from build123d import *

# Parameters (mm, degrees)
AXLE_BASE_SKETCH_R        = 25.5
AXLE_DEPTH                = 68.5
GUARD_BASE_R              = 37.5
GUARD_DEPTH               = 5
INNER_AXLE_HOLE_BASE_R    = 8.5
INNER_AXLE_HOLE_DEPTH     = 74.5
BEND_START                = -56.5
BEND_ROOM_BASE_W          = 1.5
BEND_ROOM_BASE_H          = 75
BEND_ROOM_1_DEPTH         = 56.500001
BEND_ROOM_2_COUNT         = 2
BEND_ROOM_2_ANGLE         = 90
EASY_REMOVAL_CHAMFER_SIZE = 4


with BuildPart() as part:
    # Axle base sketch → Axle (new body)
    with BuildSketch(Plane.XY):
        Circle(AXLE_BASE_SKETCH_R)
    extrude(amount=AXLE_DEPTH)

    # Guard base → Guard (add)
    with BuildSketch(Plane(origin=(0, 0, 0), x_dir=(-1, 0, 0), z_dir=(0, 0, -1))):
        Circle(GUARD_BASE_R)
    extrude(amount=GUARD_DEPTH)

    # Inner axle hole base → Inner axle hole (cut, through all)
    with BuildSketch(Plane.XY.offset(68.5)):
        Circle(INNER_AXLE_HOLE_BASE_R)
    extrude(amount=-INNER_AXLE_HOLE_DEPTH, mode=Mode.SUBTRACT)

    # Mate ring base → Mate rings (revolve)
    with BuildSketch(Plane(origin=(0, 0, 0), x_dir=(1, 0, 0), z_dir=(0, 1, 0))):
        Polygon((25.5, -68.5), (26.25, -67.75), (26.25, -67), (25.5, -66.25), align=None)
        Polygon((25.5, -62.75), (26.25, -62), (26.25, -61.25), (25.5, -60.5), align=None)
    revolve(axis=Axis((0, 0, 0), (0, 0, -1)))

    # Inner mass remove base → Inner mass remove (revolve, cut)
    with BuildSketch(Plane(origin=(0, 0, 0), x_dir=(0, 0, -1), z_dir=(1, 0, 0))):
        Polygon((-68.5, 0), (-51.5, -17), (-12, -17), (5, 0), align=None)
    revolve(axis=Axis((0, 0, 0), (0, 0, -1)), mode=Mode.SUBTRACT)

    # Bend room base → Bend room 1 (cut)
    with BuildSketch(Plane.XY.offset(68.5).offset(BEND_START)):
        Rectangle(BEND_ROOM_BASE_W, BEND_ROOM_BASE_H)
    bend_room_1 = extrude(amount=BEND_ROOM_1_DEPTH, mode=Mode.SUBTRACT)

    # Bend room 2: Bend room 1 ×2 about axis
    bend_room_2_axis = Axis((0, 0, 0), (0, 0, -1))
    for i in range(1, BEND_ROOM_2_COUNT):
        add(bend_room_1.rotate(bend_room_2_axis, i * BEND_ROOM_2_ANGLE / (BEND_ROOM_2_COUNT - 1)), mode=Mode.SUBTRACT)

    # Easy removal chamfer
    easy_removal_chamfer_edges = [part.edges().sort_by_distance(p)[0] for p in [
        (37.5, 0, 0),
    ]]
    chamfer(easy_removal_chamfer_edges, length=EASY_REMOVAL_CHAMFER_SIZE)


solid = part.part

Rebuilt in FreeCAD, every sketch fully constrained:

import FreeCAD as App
import Part
import Sketcher
Q = App.Units.Quantity


def edges_at(feature, points):
    """Names of the edges that pass closest to the given points."""
    edges = feature.Shape.Edges
    near = lambda p: min(range(len(edges)), key=lambda i: edges[i].distToShape(Part.Vertex(*p))[0])
    return sorted({f"Edge{near(p) + 1}" for p in points})

doc = App.newDocument("Part")
params = doc.addObject("Spreadsheet::Sheet", "Params")
for row, (alias, value) in enumerate([
    ("sketch1_diameter", "51 mm"),
    ("pad1_length", "68.5 mm"),
    ("sketch2_diameter", "75 mm"),
    ("pad2_length", "5 mm"),
    ("sketch3_diameter", "17 mm"),
    ("sketch4_height", "0.75 mm"),
    ("revolution_angle", "360 deg"),
    ("sketch5_height", "39.5 mm"),
    ("sketch5_height2", "73.5 mm"),
    ("groove_angle", "360 deg"),
    ("sketch6_height", "75 mm"),
    ("sketch6_width", "1.5 mm"),
    ("pocket2_length", "56.500001 mm"),
    ("chamfer_size", "4 mm"),
], start=1):
    params.set(f"A{row}", alias)
    params.set(f"B{row}", "=" + value)
    params.setAlias(f"B{row}", alias)

body = doc.addObject("PartDesign::Body", "Body")

# Sketch on XY plane
sketch1 = doc.addObject("Sketcher::SketchObject", "Sketch")
body.addObject(sketch1)
sketch1.AttachmentSupport = (doc.XY_Plane, [""])
sketch1.MapMode = "FlatFace"
sketch1.addGeometry(Part.Circle(App.Vector(0, 0, 0), App.Vector(0, 0, 1), 26), False)
sketch1.addConstraint([
    Sketcher.Constraint("Coincident", 0, 3, -1, 1),
    Sketcher.Constraint("Diameter", 0, Q("51 mm")),
])
sketch1.setExpression("Constraints[1]", "Params.sketch1_diameter")
pad1 = doc.addObject("PartDesign::Pad", "Pad")
body.addObject(pad1)
pad1.Profile = sketch1
pad1.setExpression("Length", "Params.pad1_length")

# Sketch on XY plane
sketch2 = doc.addObject("Sketcher::SketchObject", "Sketch001")
body.addObject(sketch2)
sketch2.AttachmentSupport = (doc.XY_Plane, [""])
sketch2.MapMode = "FlatFace"
sketch2.addGeometry(Part.Circle(App.Vector(0, 0, 0), App.Vector(0, 0, 1), 38), False)
sketch2.addConstraint([
    Sketcher.Constraint("Coincident", 0, 3, -1, 1),
    Sketcher.Constraint("Diameter", 0, Q("75 mm")),
])
sketch2.setExpression("Constraints[1]", "Params.sketch2_diameter")
pad2 = doc.addObject("PartDesign::Pad", "Pad001")
body.addObject(pad2)
pad2.Profile = sketch2
pad2.setExpression("Length", "Params.pad2_length")
pad2.Reversed = True

# Sketch on XY plane
sketch3 = doc.addObject("Sketcher::SketchObject", "Sketch002")
body.addObject(sketch3)
sketch3.AttachmentSupport = (doc.XY_Plane, [""])
sketch3.MapMode = "FlatFace"
sketch3.AttachmentOffset = App.Placement(App.Vector(0, 0, 68.5), App.Rotation())
sketch3.addGeometry(Part.Circle(App.Vector(0, 0, 0), App.Vector(0, 0, 1), 8), False)
sketch3.addConstraint([
    Sketcher.Constraint("Coincident", 0, 3, -1, 1),
    Sketcher.Constraint("Diameter", 0, Q("17 mm")),
])
sketch3.setExpression("Constraints[1]", "Params.sketch3_diameter")
pocket1 = doc.addObject("PartDesign::Pocket", "Pocket")
body.addObject(pocket1)
pocket1.Profile = sketch3
pocket1.Type = "ThroughAll"

# Sketch on XZ plane
sketch4 = doc.addObject("Sketcher::SketchObject", "Sketch003")
body.addObject(sketch4)
sketch4.AttachmentSupport = (doc.XZ_Plane, [""])
sketch4.MapMode = "FlatFace"
sketch4.addGeometry([
    Part.LineSegment(App.Vector(25.5, 68.5, 0), App.Vector(26.2, 67.8, 0)),  # 0
    Part.LineSegment(App.Vector(26.2, 67.8, 0), App.Vector(26.2, 67, 0)),  # 1
    Part.LineSegment(App.Vector(26.2, 67, 0), App.Vector(25.5, 66.2, 0)),  # 2
    Part.LineSegment(App.Vector(25.5, 66.2, 0), App.Vector(25.5, 68.5, 0)),  # 3
    Part.LineSegment(App.Vector(25.5, 62.8, 0), App.Vector(26.2, 62, 0)),  # 4
    Part.LineSegment(App.Vector(26.2, 62, 0), App.Vector(26.2, 61.2, 0)),  # 5
    Part.LineSegment(App.Vector(26.2, 61.2, 0), App.Vector(25.5, 60.5, 0)),  # 6
    Part.LineSegment(App.Vector(25.5, 60.5, 0), App.Vector(25.5, 62.8, 0)),  # 7
], False)
sketch4.addConstraint([
    Sketcher.Constraint("Coincident", 0, 2, 1, 1),
    Sketcher.Constraint("Coincident", 1, 2, 2, 1),
    Sketcher.Constraint("Coincident", 2, 2, 3, 1),
    Sketcher.Constraint("Coincident", 3, 2, 0, 1),
    Sketcher.Constraint("Coincident", 4, 2, 5, 1),
    Sketcher.Constraint("Coincident", 5, 2, 6, 1),
    Sketcher.Constraint("Coincident", 6, 2, 7, 1),
    Sketcher.Constraint("Coincident", 7, 2, 4, 1),
    Sketcher.Constraint("Vertical", 1),
    Sketcher.Constraint("Vertical", 3),
    Sketcher.Constraint("Vertical", 5),
    Sketcher.Constraint("Vertical", 7),
    Sketcher.Constraint("Perpendicular", 0, 2),
    Sketcher.Constraint("Perpendicular", 2, 4),
    Sketcher.Constraint("Perpendicular", 4, 6),
    Sketcher.Constraint("Vertical", 1, 2, 4, 2),
    Sketcher.Constraint("Vertical", 3, 2, 6, 2),
    Sketcher.Constraint("Equal", 1, 5),
    Sketcher.Constraint("Equal", 0, 2),
    Sketcher.Constraint("DistanceY", -1, 1, 1, 2, Q("67 mm")),
    Sketcher.Constraint("DistanceY", -1, 1, 4, 2, Q("62 mm")),
    Sketcher.Constraint("DistanceY", 5, 2, 2, 2, Q("5 mm")),
    Sketcher.Constraint("DistanceY", 1, 2, 1, 1, Q("0.75 mm")),
    Sketcher.Constraint("DistanceX", -1, 1, 2, 2, Q("25.5 mm")),
])
sketch4.setExpression("Constraints[22]", "Params.sketch4_height")
revolution = doc.addObject("PartDesign::Revolution", "Revolution")
body.addObject(revolution)
revolution.Profile = sketch4
revolution.ReferenceAxis = (sketch4, ["V_Axis"])
revolution.setExpression("Angle", "Params.revolution_angle")

# Sketch on YZ plane
sketch5 = doc.addObject("Sketcher::SketchObject", "Sketch004")
body.addObject(sketch5)
sketch5.AttachmentSupport = (doc.YZ_Plane, [""])
sketch5.MapMode = "FlatFace"
sketch5.addGeometry([
    Part.LineSegment(App.Vector(0, 68, 0), App.Vector(-17, 52, 0)),
    Part.LineSegment(App.Vector(-17, 52, 0), App.Vector(-17, 12, 0)),
    Part.LineSegment(App.Vector(-17, 12, 0), App.Vector(0, -5, 0)),
    Part.LineSegment(App.Vector(0, -5, 0), App.Vector(0, 68, 0)),
], False)
sketch5.addConstraint([
    Sketcher.Constraint("Coincident", 0, 2, 1, 1),
    Sketcher.Constraint("Coincident", 1, 2, 2, 1),
    Sketcher.Constraint("Coincident", 2, 2, 3, 1),
    Sketcher.Constraint("Coincident", 3, 2, 0, 1),
    Sketcher.Constraint("Vertical", 1),
    Sketcher.Constraint("Vertical", 3),
    Sketcher.Constraint("PointOnObject", 2, 2, -2),
    Sketcher.Constraint("Perpendicular", 0, 2),
    Sketcher.Constraint("Equal", 0, 2),
    Sketcher.Constraint("DistanceY", 1, 2, 1, 1, Q("39.5 mm")),
    Sketcher.Constraint("DistanceY", 3, 1, 3, 2, Q("73.5 mm")),
    Sketcher.Constraint("DistanceY", -1, 1, 1, 2, Q("12 mm")),
])
sketch5.setExpression("Constraints[9]", "Params.sketch5_height")
sketch5.setExpression("Constraints[10]", "Params.sketch5_height2")
groove = doc.addObject("PartDesign::Groove", "Groove")
body.addObject(groove)
groove.Profile = sketch5
groove.ReferenceAxis = (sketch5, ["V_Axis"])
groove.setExpression("Angle", "Params.groove_angle")

# Sketch on XY plane
sketch6 = doc.addObject("Sketcher::SketchObject", "Sketch005")
body.addObject(sketch6)
sketch6.AttachmentSupport = (doc.XY_Plane, [""])
sketch6.MapMode = "FlatFace"
sketch6.AttachmentOffset = App.Placement(App.Vector(0, 0, 12), App.Rotation())
sketch6.addGeometry([
    Part.LineSegment(App.Vector(-0.8, 37.5, 0), App.Vector(-0.8, -37.5, 0)),
    Part.LineSegment(App.Vector(-0.8, -37.5, 0), App.Vector(0.8, -37.5, 0)),
    Part.LineSegment(App.Vector(0.8, -37.5, 0), App.Vector(0.8, 37.5, 0)),
    Part.LineSegment(App.Vector(0.8, 37.5, 0), App.Vector(-0.8, 37.5, 0)),
], False)
sketch6.addConstraint([
    Sketcher.Constraint("Coincident", 0, 2, 1, 1),
    Sketcher.Constraint("Coincident", 1, 2, 2, 1),
    Sketcher.Constraint("Coincident", 2, 2, 3, 1),
    Sketcher.Constraint("Coincident", 3, 2, 0, 1),
    Sketcher.Constraint("Vertical", 0),
    Sketcher.Constraint("Horizontal", 1),
    Sketcher.Constraint("Vertical", 2),
    Sketcher.Constraint("Horizontal", 3),
    Sketcher.Constraint("Symmetric", 0, 2, 2, 2, -1, 1),
    Sketcher.Constraint("DistanceY", 0, 2, 0, 1, Q("75 mm")),
    Sketcher.Constraint("DistanceX", 1, 1, 1, 2, Q("1.5 mm")),
])
sketch6.setExpression("Constraints[9]", "Params.sketch6_height")
sketch6.setExpression("Constraints[10]", "Params.sketch6_width")
pocket2 = doc.addObject("PartDesign::Pocket", "Pocket001")
body.addObject(pocket2)
pocket2.Profile = sketch6
pocket2.setExpression("Length", "Params.pocket2_length")
pocket2.Reversed = True
doc.recompute()

polarpattern = doc.addObject("PartDesign::PolarPattern", "PolarPattern")
body.addObject(polarpattern)
polarpattern.Originals = [pocket2]
polarpattern.Axis = (doc.Z_Axis, [""])
polarpattern.Angle = 90
polarpattern.Occurrences = 2
polarpattern.Reversed = True
body.Tip = polarpattern
doc.recompute()

chamfer = doc.addObject("PartDesign::Chamfer", "Chamfer")
body.addObject(chamfer)
chamfer.Base = (polarpattern, edges_at(polarpattern, [(37.5, 0, 0)]))
chamfer.setExpression("Size", "Params.chamfer_size")

doc.recompute()
